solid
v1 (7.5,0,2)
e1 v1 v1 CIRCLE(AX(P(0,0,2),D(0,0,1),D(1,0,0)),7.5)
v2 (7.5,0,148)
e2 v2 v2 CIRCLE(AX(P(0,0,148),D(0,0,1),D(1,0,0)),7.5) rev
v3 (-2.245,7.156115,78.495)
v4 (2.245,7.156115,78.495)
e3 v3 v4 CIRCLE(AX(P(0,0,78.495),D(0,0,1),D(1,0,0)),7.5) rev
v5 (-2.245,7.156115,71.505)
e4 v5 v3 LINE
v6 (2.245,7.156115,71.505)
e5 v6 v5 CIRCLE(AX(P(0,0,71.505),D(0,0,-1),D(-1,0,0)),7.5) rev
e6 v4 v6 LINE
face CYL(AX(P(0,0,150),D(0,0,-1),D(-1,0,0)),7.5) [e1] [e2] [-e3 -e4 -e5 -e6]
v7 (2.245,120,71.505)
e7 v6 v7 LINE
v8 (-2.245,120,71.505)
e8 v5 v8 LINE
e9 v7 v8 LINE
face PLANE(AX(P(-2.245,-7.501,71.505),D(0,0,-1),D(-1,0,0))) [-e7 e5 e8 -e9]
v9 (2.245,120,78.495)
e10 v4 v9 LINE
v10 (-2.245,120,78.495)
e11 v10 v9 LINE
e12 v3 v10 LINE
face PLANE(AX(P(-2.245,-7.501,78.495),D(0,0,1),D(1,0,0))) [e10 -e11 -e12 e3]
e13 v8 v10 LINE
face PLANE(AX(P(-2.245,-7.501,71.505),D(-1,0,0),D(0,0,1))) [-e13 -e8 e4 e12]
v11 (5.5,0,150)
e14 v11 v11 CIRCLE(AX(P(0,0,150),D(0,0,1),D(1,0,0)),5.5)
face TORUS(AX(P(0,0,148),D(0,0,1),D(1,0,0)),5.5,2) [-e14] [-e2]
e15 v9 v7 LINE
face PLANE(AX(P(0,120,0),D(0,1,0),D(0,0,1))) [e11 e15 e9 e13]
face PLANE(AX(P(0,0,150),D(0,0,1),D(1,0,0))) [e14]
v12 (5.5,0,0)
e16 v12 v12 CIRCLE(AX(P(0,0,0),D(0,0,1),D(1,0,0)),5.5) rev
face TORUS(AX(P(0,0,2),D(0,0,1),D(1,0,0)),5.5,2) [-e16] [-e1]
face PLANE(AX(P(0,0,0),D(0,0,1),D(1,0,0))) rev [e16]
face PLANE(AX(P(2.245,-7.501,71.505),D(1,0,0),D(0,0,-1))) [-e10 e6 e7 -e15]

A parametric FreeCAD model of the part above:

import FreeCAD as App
import Part
import Sketcher
from FreeCAD import Vector


def edges_at(feature, points):
    """Names of the edges that pass closest to the given points."""
    edges = feature.Shape.Edges
    near = lambda p: min(range(len(edges)), key=lambda i: edges[i].distToShape(Part.Vertex(*p))[0])
    return sorted({f"Edge{near(p) + 1}" for p in points})


def add_polygon(sketch, points):
    """Adds a closed chain of lines whose ends are joined by coincident constraints."""
    first, n = sketch.GeometryCount, len(points)
    for a, b in zip(points, points[1:] + points[:1]):
        sketch.addGeometry(Part.LineSegment(App.Vector(*a, 0), App.Vector(*b, 0)), False)
    for i in range(n):
        sketch.addConstraint(Sketcher.Constraint("Coincident", first + i, 2, first + (i + 1) % n, 1))

doc = App.newDocument("Part")
body = doc.addObject("PartDesign::Body", "Body")

sketch1 = doc.addObject("Sketcher::SketchObject", "Sketch")
body.addObject(sketch1)
sketch1.AttachmentSupport = (doc.XY_Plane, [""])
sketch1.MapMode = "FlatFace"
sketch1.addGeometry(Part.Circle(Vector(0, 0, 0), Vector(0, 0, 1), 7.5), False)
sketch1.addConstraint(Sketcher.Constraint("Coincident", 0, 3, -1, 1))
sketch1.addConstraint(Sketcher.Constraint("Diameter", 0, 15.0))
pad1 = doc.addObject("PartDesign::Pad", "Pad")
body.addObject(pad1)
pad1.Profile = sketch1
pad1.Length = 150
doc.recompute()

fillet = doc.addObject("PartDesign::Fillet", "Fillet")
body.addObject(fillet)
fillet.Base = (pad1, edges_at(pad1, [(-7.5, 0, 0), (-7.5, 0, 150)]))
fillet.Radius = 2

sketch2 = doc.addObject("Sketcher::SketchObject", "Sketch001")
body.addObject(sketch2)
sketch2.AttachmentSupport = (doc.XZ_Plane, [""])
sketch2.MapMode = "FlatFace"
sketch2.AttachmentOffset = App.Placement(Vector(0, 0, -120), App.Rotation())
add_polygon(sketch2, [(-2.245, 71.505), (-2.245, 78.495), (2.245, 78.495), (2.245, 71.505)])
sketch2.addConstraint(Sketcher.Constraint("Vertical", 0))
sketch2.addConstraint(Sketcher.Constraint("Horizontal", 1))
sketch2.addConstraint(Sketcher.Constraint("Vertical", 2))
sketch2.addConstraint(Sketcher.Constraint("Horizontal", 3))
sketch2.addConstraint(Sketcher.Constraint("DistanceX", 1, 1, 1, 2, 4.49))
sketch2.addConstraint(Sketcher.Constraint("DistanceY", 0, 1, 0, 2, 6.99))
sketch2.addConstraint(Sketcher.Constraint("DistanceX", 0, 2, -1, 1, 2.245))
sketch2.addConstraint(Sketcher.Constraint("DistanceY", -1, 1, 0, 2, 78.495))
pad2 = doc.addObject("PartDesign::Pad", "Pad001")
body.addObject(pad2)
pad2.Profile = sketch2
pad2.Type = "UpToFirst"

doc.recompute()
